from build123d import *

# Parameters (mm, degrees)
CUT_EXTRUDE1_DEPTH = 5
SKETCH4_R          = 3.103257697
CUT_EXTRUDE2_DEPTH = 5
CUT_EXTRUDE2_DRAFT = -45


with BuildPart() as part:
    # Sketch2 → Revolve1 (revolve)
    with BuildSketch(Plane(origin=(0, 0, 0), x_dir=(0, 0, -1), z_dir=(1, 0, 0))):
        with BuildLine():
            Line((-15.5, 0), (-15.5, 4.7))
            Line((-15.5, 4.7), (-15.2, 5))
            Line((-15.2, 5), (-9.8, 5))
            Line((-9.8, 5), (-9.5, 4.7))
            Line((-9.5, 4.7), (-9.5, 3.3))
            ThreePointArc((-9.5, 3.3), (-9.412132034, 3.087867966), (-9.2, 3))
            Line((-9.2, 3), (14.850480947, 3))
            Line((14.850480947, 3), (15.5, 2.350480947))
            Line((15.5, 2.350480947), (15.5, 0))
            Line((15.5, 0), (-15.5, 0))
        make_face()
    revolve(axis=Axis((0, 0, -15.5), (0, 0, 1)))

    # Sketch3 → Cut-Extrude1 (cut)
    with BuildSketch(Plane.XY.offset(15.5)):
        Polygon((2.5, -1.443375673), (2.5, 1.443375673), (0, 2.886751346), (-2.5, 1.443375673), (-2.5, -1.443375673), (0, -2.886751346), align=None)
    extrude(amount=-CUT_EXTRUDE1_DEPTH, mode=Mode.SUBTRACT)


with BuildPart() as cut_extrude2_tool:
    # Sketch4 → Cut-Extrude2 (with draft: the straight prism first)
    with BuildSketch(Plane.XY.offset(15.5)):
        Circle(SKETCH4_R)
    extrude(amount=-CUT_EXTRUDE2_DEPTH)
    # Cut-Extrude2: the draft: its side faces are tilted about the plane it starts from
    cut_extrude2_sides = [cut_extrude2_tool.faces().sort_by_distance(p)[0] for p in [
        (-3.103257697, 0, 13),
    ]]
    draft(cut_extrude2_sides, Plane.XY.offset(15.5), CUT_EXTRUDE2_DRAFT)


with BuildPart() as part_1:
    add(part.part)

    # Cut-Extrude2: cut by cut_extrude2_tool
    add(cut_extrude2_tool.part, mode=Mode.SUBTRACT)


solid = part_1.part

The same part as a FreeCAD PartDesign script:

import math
import FreeCAD as App
import Part
import Sketcher

V = App.Vector
Q = App.Units.Quantity


def faces_at(feature, points):
    """Names of the faces that lie closest to the given points."""
    faces = feature.Shape.Faces
    near = lambda p: min(range(len(faces)), key=lambda i: faces[i].distToShape(Part.Vertex(*p))[0])
    return sorted({f"Face{near(p) + 1}" for p in points})

doc = App.newDocument("Part")
body = doc.addObject("PartDesign::Body", "Body")

# Sketch on YZ plane
sketch1 = doc.addObject("Sketcher::SketchObject", "Sketch")
body.addObject(sketch1)
sketch1.AttachmentSupport = (doc.YZ_Plane, [""])
sketch1.MapMode = "FlatFace"
sketch1.addGeometry([
    Part.LineSegment(V(4.7, 15.5, 0), V(0, 15.5, 0)),  # 0
    Part.LineSegment(V(0, 15.5, 0), V(0, -15.5, 0)),  # 1
    Part.LineSegment(V(0, -15.5, 0), V(2.350481, -15.5, 0)),  # 2
    Part.LineSegment(V(2.350481, -15.5, 0), V(3, -14.850481, 0)),  # 3
    Part.LineSegment(V(3, -14.850481, 0), V(3, 9.2, 0)),  # 4
    Part.ArcOfCircle(Part.Circle(V(3.3, 9.2, 0), V(0, 0, 1), 0.3), math.radians(90), math.radians(180)),  # 5
    Part.LineSegment(V(3.3, 9.5, 0), V(4.7, 9.5, 0)),  # 6
    Part.LineSegment(V(4.7, 9.5, 0), V(5, 9.8, 0)),  # 7
    Part.LineSegment(V(5, 9.8, 0), V(5, 15.2, 0)),  # 8
    Part.LineSegment(V(5, 15.2, 0), V(4.7, 15.5, 0)),  # 9
], False)
sketch1.addConstraint([
    Sketcher.Constraint("Coincident", 0, 2, 1, 1),
    Sketcher.Constraint("Coincident", 1, 2, 2, 1),
    Sketcher.Constraint("Coincident", 2, 2, 3, 1),
    Sketcher.Constraint("Coincident", 3, 2, 4, 1),
    Sketcher.Constraint("Tangent", 4, 2, 5, 2),
    Sketcher.Constraint("Tangent", 5, 1, 6, 1),
    Sketcher.Constraint("Coincident", 6, 2, 7, 1),
    Sketcher.Constraint("Coincident", 7, 2, 8, 1),
    Sketcher.Constraint("Coincident", 8, 2, 9, 1),
    Sketcher.Constraint("Coincident", 9, 2, 0, 1),
    Sketcher.Constraint("Horizontal", 0),
    Sketcher.Constraint("Vertical", 1),
    Sketcher.Constraint("Horizontal", 2),
    Sketcher.Constraint("Vertical", 4),
    Sketcher.Constraint("Horizontal", 6),
    Sketcher.Constraint("Vertical", 8),
    Sketcher.Constraint("Symmetric", 0, 2, 1, 2, -1, 1),
    Sketcher.Constraint("Parallel", 3, 7),
    Sketcher.Constraint("Perpendicular", 7, 9),
    Sketcher.Constraint("Vertical", 6, 2, 9, 2),
    Sketcher.Constraint("Equal", 7, 9),
    Sketcher.Constraint("Radius", 5, 0.3),
    Sketcher.Constraint("DistanceY", 1, 2, 1, 1, 31.0),
    Sketcher.Constraint("DistanceX", 0, 2, 0, 1, 4.7),
    Sketcher.Constraint("DistanceX", 6, 1, 6, 2, 1.4),
    Sketcher.Constraint("DistanceY", 8, 1, 8, 2, 5.4),
    Sketcher.Constraint("DistanceX", -1, 1, 7, 2, 5.0),
    Sketcher.Constraint("DistanceX", 2, 1, 2, 2, 2.350481),
])
revolution = doc.addObject("PartDesign::Revolution", "Revolution")
body.addObject(revolution)
revolution.Profile = sketch1
revolution.ReferenceAxis = (sketch1, ["V_Axis"])
revolution.Angle = 360

# Sketch on XY plane
sketch2 = doc.addObject("Sketcher::SketchObject", "Sketch001")
body.addObject(sketch2)
sketch2.AttachmentSupport = (doc.XY_Plane, [""])
sketch2.MapMode = "FlatFace"
sketch2.AttachmentOffset = App.Placement(V(0, 0, 15.5), App.Rotation())
sketch2.addGeometry([
    Part.LineSegment(V(2.5, -1.443376, 0), V(2.5, 1.443376, 0)),  # 0
    Part.LineSegment(V(2.5, 1.443376, 0), V(0, 2.886751, 0)),  # 1
    Part.LineSegment(V(0, 2.886751, 0), V(-2.5, 1.443376, 0)),  # 2
    Part.LineSegment(V(-2.5, 1.443376, 0), V(-2.5, -1.443376, 0)),  # 3
    Part.LineSegment(V(-2.5, -1.443376, 0), V(0, -2.886751, 0)),  # 4
    Part.LineSegment(V(0, -2.886751, 0), V(2.5, -1.443376, 0)),  # 5
], False)
sketch2.addConstraint([
    Sketcher.Constraint("Coincident", 0, 2, 1, 1),
    Sketcher.Constraint("Coincident", 1, 2, 2, 1),
    Sketcher.Constraint("Coincident", 2, 2, 3, 1),
    Sketcher.Constraint("Coincident", 3, 2, 4, 1),
    Sketcher.Constraint("Coincident", 4, 2, 5, 1),
    Sketcher.Constraint("Coincident", 5, 2, 0, 1),
    Sketcher.Constraint("Vertical", 0),
    Sketcher.Constraint("Vertical", 3),
    Sketcher.Constraint("Symmetric", 0, 2, 3, 2, -1, 1),
    Sketcher.Constraint("Symmetric", 1, 2, 4, 2, -1, 1),
    Sketcher.Constraint("PointOnObject", 1, 2, -2),
    Sketcher.Constraint("Parallel", 2, 5),
    Sketcher.Constraint("Horizontal", 0, 2, 2, 2),
    Sketcher.Constraint("Angle", 1, Q("150 deg")),
    Sketcher.Constraint("DistanceX", 2, 2, 0, 2, 5.0),
    Sketcher.Constraint("DistanceY", 0, 1, 0, 2, 2.886751),
])
pocket1 = doc.addObject("PartDesign::Pocket", "Pocket")
body.addObject(pocket1)
pocket1.Profile = sketch2
pocket1.Length = 5
body2 = doc.addObject("PartDesign::Body", "Body001")

# Sketch on XY plane
sketch3 = doc.addObject("Sketcher::SketchObject", "Sketch002")
body2.addObject(sketch3)
sketch3.AttachmentSupport = (doc.getObject("XY_Plane001"), [""])
sketch3.MapMode = "FlatFace"
sketch3.AttachmentOffset = App.Placement(V(0, 0, 15.5), App.Rotation())
sketch3.addGeometry(Part.Circle(V(0, 0, 0), V(0, 0, 1), 3.103258), False)
sketch3.addConstraint([
    Sketcher.Constraint("Coincident", 0, 3, -1, 1),
    Sketcher.Constraint("Diameter", 0, 6.206515),
])
pad1 = doc.addObject("PartDesign::Pad", "Pad")
body2.addObject(pad1)
pad1.Profile = sketch3
pad1.Length = 5
pad1.Reversed = True
doc.recompute()

datumplane = doc.addObject("PartDesign::Plane", "DatumPlane")
body2.addObject(datumplane)
datumplane.AttachmentSupport = (doc.getObject("XY_Plane001"), [""])
datumplane.MapMode = "FlatFace"
datumplane.AttachmentOffset = App.Placement(V(0, 0, 15.5), App.Rotation())
draft = doc.addObject("PartDesign::Draft", "Draft")
body2.addObject(draft)
draft.Base = (pad1, faces_at(pad1, [(-3.103, 0, 13)]))
draft.NeutralPlane = (datumplane, [""])
draft.Angle = 45
draft.Reversed = True
doc.recompute()

boolean = doc.addObject("PartDesign::Boolean", "Boolean")
body.addObject(boolean)
boolean.Type = "Cut"
boolean.addObjects([body2])

doc.recompute()
